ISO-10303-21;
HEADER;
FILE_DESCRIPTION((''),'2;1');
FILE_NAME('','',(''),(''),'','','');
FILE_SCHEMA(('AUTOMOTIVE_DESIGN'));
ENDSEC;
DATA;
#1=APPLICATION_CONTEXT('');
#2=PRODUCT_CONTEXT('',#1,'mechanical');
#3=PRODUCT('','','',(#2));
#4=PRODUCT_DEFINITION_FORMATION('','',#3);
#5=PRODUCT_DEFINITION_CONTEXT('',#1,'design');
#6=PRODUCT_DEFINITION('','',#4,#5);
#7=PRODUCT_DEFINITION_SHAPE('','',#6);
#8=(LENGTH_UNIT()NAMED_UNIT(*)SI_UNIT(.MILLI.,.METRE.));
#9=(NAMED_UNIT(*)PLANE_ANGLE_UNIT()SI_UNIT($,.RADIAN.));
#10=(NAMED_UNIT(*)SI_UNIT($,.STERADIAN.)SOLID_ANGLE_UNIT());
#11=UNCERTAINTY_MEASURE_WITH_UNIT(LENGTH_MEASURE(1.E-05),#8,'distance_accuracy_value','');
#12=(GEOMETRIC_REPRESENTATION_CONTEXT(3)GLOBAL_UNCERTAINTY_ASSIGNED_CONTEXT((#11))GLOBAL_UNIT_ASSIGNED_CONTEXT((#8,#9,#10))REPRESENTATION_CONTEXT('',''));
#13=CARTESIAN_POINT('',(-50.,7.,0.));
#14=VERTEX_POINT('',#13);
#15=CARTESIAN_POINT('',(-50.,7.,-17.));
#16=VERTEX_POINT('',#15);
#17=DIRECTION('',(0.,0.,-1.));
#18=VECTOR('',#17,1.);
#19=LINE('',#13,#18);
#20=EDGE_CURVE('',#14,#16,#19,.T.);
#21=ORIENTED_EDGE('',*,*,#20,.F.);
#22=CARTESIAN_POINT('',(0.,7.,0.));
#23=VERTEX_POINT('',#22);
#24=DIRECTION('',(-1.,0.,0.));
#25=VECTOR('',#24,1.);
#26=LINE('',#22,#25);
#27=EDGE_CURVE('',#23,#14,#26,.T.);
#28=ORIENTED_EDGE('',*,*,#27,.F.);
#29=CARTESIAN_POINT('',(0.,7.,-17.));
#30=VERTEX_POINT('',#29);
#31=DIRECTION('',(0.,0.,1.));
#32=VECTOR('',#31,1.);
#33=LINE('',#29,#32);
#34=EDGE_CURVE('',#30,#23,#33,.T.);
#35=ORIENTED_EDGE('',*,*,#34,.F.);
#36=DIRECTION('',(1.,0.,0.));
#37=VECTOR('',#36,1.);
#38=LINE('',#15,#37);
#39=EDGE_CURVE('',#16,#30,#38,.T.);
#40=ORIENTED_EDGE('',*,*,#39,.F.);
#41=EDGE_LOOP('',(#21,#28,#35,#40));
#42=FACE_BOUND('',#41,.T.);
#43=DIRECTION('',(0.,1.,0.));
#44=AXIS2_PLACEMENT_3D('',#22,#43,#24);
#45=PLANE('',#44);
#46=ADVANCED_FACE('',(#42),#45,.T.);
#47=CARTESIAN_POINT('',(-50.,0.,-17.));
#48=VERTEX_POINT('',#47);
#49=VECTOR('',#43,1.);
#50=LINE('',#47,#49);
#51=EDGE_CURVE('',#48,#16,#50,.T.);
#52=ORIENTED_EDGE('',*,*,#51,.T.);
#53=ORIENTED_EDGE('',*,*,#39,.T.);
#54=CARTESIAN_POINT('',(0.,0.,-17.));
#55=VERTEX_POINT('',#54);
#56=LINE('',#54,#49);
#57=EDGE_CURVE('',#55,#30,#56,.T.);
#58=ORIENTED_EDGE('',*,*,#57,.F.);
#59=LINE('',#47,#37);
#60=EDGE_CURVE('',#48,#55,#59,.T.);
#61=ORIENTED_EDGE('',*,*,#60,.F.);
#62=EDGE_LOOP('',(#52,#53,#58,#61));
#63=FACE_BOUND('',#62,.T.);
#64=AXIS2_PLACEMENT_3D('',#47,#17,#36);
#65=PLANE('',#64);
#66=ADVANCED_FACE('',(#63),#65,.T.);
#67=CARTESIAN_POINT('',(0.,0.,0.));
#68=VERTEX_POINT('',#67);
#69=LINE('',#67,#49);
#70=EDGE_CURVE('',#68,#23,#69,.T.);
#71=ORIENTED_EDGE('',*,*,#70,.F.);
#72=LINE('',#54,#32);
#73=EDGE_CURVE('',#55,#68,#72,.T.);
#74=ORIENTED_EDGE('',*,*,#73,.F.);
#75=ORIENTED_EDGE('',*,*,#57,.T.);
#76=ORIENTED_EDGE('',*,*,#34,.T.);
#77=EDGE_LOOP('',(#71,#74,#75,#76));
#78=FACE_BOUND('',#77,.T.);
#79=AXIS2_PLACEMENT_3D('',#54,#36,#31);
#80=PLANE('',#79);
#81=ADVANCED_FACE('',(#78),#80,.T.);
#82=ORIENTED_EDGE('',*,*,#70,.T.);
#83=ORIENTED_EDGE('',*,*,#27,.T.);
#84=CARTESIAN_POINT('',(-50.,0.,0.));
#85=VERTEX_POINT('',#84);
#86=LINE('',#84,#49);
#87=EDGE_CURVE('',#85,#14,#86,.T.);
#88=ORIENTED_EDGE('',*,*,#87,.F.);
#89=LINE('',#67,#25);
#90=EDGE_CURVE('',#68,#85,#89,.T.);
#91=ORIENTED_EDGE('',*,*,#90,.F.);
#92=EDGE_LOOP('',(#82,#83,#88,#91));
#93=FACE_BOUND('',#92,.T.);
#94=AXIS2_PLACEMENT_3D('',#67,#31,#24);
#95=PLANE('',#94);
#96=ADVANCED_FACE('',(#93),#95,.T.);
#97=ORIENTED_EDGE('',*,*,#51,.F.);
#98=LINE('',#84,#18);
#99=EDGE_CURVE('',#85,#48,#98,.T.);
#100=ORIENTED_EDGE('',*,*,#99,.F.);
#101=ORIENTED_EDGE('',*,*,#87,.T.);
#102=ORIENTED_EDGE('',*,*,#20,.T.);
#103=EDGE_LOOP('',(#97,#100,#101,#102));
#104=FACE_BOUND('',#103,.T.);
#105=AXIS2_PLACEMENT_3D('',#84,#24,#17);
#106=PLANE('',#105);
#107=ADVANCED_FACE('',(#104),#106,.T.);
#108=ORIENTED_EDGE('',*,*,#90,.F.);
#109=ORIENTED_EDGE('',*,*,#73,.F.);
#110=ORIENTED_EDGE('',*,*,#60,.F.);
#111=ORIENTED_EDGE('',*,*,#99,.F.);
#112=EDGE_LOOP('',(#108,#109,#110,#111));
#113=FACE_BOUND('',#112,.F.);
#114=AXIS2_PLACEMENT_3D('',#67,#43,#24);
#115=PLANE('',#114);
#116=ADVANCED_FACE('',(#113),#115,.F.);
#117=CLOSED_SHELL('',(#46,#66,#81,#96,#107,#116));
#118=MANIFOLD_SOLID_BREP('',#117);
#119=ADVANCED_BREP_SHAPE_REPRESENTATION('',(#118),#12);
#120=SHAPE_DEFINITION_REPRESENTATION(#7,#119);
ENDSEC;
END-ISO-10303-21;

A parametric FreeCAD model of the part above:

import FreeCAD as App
import Part
import Sketcher
from FreeCAD import Vector
Q = App.Units.Quantity


def add_polygon(sketch, points):
    """Adds a closed chain of lines whose ends are joined by coincident constraints."""
    first, n = sketch.GeometryCount, len(points)
    for a, b in zip(points, points[1:] + points[:1]):
        sketch.addGeometry(Part.LineSegment(App.Vector(*a, 0), App.Vector(*b, 0)), False)
    for i in range(n):
        sketch.addConstraint(Sketcher.Constraint("Coincident", first + i, 2, first + (i + 1) % n, 1))

doc = App.newDocument("Part")
body = doc.addObject("PartDesign::Body", "Body")

sketch1 = body.newObject("Sketcher::SketchObject", "Sketch")
sketch1.AttachmentSupport = (doc.getObject("XZ_Plane"), [""])
sketch1.MapMode = "FlatFace"
add_polygon(sketch1, [(-50, 0), (0, 0), (0, -17), (-50, -17)])
sketch1.addConstraint(Sketcher.Constraint("Horizontal", 0))
sketch1.addConstraint(Sketcher.Constraint("Vertical", 1))
sketch1.addConstraint(Sketcher.Constraint("Horizontal", 2))
sketch1.addConstraint(Sketcher.Constraint("Vertical", 3))
sketch1.addConstraint(Sketcher.Constraint("Coincident", 0, 2, -1, 1))
sketch1.addConstraint(Sketcher.Constraint("DistanceX", 0, 1, 0, 2, Q("50 mm")))
sketch1.addConstraint(Sketcher.Constraint("DistanceY", 1, 2, 1, 1, Q("17 mm")))
pad1 = body.newObject("PartDesign::Pad", "Pad")
pad1.Profile = sketch1
pad1.Length = 7
pad1.Reversed = True

doc.recompute()
